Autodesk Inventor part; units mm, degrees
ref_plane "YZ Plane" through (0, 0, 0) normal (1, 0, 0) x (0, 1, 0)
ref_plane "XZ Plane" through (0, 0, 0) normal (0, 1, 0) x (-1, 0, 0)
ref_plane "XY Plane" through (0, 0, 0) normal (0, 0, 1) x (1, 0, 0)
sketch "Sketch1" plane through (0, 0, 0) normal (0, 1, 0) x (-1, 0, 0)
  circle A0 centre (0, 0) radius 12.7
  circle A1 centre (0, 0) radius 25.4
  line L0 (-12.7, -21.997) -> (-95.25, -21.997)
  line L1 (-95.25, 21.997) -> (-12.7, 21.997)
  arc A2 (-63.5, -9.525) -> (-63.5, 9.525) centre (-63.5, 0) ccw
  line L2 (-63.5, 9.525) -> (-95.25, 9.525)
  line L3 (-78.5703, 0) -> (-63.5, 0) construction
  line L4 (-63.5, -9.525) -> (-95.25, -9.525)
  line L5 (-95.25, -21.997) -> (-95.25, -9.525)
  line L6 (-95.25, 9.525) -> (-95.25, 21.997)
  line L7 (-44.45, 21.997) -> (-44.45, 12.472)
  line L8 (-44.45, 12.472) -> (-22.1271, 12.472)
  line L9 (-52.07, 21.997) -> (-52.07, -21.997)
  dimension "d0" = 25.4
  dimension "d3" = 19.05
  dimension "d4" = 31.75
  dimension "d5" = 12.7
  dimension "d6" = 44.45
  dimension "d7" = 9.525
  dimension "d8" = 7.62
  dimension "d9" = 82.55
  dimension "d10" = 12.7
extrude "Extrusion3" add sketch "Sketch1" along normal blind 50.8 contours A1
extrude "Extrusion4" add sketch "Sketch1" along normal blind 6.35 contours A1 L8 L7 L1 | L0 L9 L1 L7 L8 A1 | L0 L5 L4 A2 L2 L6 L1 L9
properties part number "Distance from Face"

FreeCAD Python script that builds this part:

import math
import FreeCAD as App
import Part
import Sketcher
Q = App.Units.Quantity

doc = App.newDocument("Part")
body = doc.addObject("PartDesign::Body", "Body")

# Sketch on XZ plane
sketch1 = body.newObject("Sketcher::SketchObject", "Sketch")
sketch1.AttachmentSupport = (doc.getObject("XZ_Plane"), [""])
sketch1.MapMode = "FlatFace"
sketch1.addGeometry(Part.Circle(App.Vector(0, 0, 0), App.Vector(0, 0, 1), 25), False)
sketch1.addGeometry(Part.Circle(App.Vector(0, 0, 0), App.Vector(0, 0, 1), 13), False)
sketch1.addConstraint(Sketcher.Constraint("Coincident", 0, 3, -1, 1))
sketch1.addConstraint(Sketcher.Constraint("Coincident", 1, 3, -1, 1))
sketch1.addConstraint(Sketcher.Constraint("Diameter", 0, Q("2 in")))
sketch1.addConstraint(Sketcher.Constraint("Diameter", 1, Q("1 in")))
pad1 = body.newObject("PartDesign::Pad", "Pad")
pad1.Profile = sketch1
pad1.Length = Q("2 in")
pad1.Reversed = True

# Sketch on XZ plane
sketch2 = body.newObject("Sketcher::SketchObject", "Sketch001")
sketch2.AttachmentSupport = (doc.getObject("XZ_Plane"), [""])
sketch2.MapMode = "FlatFace"
sketch2.addGeometry(Part.LineSegment(App.Vector(13, 22, 0), App.Vector(95, 22, 0)), False)
sketch2.addGeometry(Part.LineSegment(App.Vector(95, 22, 0), App.Vector(95, 10, 0)), False)
sketch2.addGeometry(Part.LineSegment(App.Vector(95, 10, 0), App.Vector(64, 10, 0)), False)
sketch2.addGeometry(Part.ArcOfCircle(Part.Circle(App.Vector(64, 0, 0), App.Vector(0, 0, 1), 10), math.radians(90), math.radians(270)), False)
sketch2.addGeometry(Part.LineSegment(App.Vector(64, -10, 0), App.Vector(95, -10, 0)), False)
sketch2.addGeometry(Part.LineSegment(App.Vector(95, -10, 0), App.Vector(95, -22, 0)), False)
sketch2.addGeometry(Part.LineSegment(App.Vector(95, -22, 0), App.Vector(13, -22, 0)), False)
sketch2.addGeometry(Part.ArcOfCircle(Part.Circle(App.Vector(0, 0, 0), App.Vector(0, 0, 1), 25), math.radians(-60), math.radians(60)), False)
sketch2.addConstraint(Sketcher.Constraint("Coincident", 0, 2, 1, 1))
sketch2.addConstraint(Sketcher.Constraint("Coincident", 1, 2, 2, 1))
sketch2.addConstraint(Sketcher.Constraint("Tangent", 2, 2, 3, 1))
sketch2.addConstraint(Sketcher.Constraint("Tangent", 3, 2, 4, 1))
sketch2.addConstraint(Sketcher.Constraint("Coincident", 4, 2, 5, 1))
sketch2.addConstraint(Sketcher.Constraint("Coincident", 5, 2, 6, 1))
sketch2.addConstraint(Sketcher.Constraint("Coincident", 6, 2, 7, 1))
sketch2.addConstraint(Sketcher.Constraint("Coincident", 7, 2, 0, 1))
sketch2.addConstraint(Sketcher.Constraint("Horizontal", 0))
sketch2.addConstraint(Sketcher.Constraint("Vertical", 1))
sketch2.addConstraint(Sketcher.Constraint("Horizontal", 2))
sketch2.addConstraint(Sketcher.Constraint("Horizontal", 4))
sketch2.addConstraint(Sketcher.Constraint("Vertical", 5))
sketch2.addConstraint(Sketcher.Constraint("Horizontal", 6))
sketch2.addConstraint(Sketcher.Constraint("Coincident", 7, 3, -1, 1))
sketch2.addConstraint(Sketcher.Constraint("Symmetric", 1, 2, 4, 2, -1))
sketch2.addConstraint(Sketcher.Constraint("Vertical", 6, 2, 7, 2))
sketch2.addConstraint(Sketcher.Constraint("Radius", 7, Q("1 in")))
sketch2.addConstraint(Sketcher.Constraint("Radius", 3, Q("0.375 in")))
sketch2.addConstraint(Sketcher.Constraint("DistanceX", 0, 1, 0, 2, Q("3.25 in")))
sketch2.addConstraint(Sketcher.Constraint("DistanceX", 2, 2, 2, 1, Q("1.25 in")))
sketch2.addConstraint(Sketcher.Constraint("DistanceX", -1, 1, 6, 2, Q("0.5 in")))
pad2 = body.newObject("PartDesign::Pad", "Pad001")
pad2.Profile = sketch2
pad2.Length = Q("0.25 in")
pad2.Reversed = True

doc.recompute()
